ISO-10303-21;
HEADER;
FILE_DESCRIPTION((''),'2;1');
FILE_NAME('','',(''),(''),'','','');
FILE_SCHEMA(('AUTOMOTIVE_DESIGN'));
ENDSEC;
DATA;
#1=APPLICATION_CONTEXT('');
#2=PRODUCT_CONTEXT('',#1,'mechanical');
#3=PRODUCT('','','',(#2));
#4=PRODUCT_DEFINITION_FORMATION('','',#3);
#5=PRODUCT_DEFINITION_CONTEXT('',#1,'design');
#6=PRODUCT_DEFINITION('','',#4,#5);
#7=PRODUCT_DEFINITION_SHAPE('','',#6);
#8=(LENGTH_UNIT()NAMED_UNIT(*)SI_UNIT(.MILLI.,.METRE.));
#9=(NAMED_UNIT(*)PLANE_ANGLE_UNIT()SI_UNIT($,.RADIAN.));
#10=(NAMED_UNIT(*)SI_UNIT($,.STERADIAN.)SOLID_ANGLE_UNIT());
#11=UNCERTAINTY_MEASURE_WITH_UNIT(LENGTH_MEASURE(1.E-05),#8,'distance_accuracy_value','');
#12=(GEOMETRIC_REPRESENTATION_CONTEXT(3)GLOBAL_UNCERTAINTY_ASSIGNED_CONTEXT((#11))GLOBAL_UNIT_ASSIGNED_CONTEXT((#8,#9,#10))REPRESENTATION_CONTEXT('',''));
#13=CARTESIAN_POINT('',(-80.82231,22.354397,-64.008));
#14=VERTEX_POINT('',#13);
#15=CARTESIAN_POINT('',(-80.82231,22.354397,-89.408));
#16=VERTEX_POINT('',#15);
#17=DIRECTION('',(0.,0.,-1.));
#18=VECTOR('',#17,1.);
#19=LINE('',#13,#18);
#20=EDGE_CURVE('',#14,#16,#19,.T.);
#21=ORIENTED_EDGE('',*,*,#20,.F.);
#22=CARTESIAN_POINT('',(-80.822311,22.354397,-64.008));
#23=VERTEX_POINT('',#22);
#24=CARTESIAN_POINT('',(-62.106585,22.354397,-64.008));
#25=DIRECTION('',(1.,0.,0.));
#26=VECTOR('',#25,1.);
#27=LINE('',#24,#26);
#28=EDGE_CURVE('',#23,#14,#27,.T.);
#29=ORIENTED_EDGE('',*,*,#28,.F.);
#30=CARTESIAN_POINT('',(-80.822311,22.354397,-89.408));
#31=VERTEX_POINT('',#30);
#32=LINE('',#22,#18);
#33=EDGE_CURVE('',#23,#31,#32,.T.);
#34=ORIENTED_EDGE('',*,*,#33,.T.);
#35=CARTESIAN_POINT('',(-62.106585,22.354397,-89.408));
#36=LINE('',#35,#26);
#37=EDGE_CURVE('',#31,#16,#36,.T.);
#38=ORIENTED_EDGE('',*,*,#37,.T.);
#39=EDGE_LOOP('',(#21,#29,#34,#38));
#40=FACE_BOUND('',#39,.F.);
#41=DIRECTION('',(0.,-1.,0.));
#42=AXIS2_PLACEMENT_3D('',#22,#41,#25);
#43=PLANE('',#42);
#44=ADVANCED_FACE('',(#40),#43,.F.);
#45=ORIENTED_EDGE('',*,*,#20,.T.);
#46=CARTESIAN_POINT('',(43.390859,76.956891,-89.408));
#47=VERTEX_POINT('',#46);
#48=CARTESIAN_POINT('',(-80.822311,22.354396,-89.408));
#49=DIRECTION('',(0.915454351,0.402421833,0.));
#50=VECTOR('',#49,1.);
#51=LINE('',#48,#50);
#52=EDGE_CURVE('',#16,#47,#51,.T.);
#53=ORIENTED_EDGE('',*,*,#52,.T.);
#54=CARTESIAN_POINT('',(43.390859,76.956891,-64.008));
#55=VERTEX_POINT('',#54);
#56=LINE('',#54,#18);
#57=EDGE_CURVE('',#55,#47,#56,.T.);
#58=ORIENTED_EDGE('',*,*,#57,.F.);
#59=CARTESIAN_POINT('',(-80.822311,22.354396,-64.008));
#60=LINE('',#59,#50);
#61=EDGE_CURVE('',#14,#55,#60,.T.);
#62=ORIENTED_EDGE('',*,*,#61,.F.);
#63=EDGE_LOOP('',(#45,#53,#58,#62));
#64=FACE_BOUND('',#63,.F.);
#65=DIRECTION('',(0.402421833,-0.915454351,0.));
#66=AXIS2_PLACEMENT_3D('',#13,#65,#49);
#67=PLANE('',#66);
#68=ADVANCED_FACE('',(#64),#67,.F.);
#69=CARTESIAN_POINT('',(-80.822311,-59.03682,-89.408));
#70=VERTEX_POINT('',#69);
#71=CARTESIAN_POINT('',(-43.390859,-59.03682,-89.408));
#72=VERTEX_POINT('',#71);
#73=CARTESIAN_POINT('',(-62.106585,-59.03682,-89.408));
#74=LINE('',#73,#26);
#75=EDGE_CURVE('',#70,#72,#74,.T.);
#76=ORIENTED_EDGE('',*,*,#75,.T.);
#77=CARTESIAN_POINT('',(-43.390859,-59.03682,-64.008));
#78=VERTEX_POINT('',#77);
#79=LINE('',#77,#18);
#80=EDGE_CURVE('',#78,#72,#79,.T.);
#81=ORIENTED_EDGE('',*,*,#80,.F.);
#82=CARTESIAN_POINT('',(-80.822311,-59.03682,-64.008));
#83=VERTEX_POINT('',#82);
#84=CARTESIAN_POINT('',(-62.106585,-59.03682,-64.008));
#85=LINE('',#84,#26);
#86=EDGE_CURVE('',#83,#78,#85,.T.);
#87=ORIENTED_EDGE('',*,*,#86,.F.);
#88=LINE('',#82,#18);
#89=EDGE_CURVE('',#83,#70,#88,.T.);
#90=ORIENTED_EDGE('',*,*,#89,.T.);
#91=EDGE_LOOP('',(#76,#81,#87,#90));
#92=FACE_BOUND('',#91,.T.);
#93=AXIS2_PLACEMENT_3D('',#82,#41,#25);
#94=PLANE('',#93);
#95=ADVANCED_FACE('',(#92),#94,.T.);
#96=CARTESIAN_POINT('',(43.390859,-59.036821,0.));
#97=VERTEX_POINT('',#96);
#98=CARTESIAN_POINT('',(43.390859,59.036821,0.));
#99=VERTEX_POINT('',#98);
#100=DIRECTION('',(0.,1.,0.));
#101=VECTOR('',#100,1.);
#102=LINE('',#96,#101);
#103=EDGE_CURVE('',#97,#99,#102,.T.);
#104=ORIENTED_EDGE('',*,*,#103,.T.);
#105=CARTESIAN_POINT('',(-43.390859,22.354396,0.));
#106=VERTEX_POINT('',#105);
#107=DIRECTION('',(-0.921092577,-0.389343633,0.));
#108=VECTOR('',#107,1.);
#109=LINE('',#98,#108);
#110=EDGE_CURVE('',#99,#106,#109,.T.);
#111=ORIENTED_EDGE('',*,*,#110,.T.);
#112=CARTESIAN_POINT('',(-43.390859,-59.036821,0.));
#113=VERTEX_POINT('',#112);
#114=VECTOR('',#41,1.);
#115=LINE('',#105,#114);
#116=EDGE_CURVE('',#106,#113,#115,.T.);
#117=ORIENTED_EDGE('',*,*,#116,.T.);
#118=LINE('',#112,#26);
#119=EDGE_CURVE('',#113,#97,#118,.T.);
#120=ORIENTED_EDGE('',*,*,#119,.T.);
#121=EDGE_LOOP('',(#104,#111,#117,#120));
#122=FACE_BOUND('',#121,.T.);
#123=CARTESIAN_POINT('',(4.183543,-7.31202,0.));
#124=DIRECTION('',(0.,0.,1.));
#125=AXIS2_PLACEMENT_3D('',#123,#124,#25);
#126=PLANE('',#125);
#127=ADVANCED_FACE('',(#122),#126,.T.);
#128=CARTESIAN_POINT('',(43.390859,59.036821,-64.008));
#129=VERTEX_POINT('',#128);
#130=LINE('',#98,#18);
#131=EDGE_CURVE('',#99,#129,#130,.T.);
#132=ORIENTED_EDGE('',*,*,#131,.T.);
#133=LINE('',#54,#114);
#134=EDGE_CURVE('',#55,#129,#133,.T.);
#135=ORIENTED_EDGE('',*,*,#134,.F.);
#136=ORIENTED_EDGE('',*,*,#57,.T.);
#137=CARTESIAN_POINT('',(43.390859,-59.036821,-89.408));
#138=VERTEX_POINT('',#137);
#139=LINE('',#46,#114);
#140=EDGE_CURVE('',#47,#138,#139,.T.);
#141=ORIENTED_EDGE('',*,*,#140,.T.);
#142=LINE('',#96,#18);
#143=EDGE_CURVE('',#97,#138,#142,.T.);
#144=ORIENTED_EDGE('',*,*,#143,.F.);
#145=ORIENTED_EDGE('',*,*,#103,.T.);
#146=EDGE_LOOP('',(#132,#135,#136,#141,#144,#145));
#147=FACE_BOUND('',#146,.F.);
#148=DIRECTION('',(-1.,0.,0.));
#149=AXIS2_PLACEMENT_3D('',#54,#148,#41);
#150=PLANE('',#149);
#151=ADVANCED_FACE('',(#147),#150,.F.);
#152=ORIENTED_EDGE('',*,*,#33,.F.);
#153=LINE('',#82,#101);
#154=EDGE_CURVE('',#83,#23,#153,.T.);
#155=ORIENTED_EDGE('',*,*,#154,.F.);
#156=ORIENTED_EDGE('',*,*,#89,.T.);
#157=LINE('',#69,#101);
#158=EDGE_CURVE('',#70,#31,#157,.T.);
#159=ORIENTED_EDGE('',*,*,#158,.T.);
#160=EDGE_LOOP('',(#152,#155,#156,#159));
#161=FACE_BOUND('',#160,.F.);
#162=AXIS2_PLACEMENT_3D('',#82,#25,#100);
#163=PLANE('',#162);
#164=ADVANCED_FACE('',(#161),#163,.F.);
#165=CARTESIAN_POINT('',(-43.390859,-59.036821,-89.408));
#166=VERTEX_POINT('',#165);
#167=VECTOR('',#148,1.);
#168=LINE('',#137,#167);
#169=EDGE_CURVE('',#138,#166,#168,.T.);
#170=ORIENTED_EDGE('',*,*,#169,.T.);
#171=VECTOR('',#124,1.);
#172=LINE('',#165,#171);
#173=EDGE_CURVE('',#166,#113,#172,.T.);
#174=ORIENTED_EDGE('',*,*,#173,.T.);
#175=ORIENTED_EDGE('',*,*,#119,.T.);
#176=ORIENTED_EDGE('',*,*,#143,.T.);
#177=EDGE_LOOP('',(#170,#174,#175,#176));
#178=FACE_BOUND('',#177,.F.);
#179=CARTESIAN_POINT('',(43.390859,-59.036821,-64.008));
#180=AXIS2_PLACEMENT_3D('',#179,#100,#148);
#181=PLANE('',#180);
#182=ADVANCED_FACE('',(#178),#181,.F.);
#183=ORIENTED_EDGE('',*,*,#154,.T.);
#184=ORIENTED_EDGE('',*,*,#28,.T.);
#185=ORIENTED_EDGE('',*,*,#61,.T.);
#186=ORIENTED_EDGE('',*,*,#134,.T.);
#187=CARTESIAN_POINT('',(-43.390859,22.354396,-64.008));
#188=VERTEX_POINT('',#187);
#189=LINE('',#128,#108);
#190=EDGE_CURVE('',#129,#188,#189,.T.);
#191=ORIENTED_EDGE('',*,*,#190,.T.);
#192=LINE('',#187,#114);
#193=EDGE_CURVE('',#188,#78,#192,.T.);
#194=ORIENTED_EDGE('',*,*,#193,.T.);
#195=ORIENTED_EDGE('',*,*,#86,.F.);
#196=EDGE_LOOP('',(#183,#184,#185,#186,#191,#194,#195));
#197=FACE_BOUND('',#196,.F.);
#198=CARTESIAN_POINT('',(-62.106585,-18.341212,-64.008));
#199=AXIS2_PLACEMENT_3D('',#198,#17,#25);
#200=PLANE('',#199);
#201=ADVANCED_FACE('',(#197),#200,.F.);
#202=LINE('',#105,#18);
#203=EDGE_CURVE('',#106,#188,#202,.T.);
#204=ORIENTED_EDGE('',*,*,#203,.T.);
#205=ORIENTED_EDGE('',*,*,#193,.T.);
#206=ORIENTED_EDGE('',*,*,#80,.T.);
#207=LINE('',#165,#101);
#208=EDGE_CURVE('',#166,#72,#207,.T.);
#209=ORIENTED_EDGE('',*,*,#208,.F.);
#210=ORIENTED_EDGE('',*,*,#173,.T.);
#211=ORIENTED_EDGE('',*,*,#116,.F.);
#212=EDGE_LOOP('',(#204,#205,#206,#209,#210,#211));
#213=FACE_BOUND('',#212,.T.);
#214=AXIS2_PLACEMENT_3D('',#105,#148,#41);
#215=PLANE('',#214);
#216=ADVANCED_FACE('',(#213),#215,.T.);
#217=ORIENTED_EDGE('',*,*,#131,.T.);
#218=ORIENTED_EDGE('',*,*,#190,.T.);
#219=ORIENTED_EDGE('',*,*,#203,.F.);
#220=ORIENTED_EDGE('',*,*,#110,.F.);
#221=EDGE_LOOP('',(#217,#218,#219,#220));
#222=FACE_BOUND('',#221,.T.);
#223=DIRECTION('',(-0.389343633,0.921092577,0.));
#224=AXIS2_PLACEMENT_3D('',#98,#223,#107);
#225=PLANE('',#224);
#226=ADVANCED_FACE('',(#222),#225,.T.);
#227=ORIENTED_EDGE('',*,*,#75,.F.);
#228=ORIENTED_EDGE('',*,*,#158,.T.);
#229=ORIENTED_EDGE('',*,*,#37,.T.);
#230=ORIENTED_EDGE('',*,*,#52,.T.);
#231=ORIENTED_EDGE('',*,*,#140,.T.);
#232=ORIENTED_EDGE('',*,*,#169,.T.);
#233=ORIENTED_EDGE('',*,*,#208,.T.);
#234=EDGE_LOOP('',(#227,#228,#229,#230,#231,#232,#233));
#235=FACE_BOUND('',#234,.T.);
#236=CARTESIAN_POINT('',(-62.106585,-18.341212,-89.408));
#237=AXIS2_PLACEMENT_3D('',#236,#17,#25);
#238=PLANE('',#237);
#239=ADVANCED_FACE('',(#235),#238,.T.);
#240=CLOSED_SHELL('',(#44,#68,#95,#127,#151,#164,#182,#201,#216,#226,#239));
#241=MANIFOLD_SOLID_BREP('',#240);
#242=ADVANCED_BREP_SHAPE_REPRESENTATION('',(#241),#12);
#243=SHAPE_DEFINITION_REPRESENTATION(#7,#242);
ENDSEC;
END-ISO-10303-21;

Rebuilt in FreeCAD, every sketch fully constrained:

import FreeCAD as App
import Part
import Sketcher
from FreeCAD import Vector
Q = App.Units.Quantity


def add_polygon(sketch, points):
    """Adds a closed chain of lines whose ends are joined by coincident constraints."""
    first, n = sketch.GeometryCount, len(points)
    for a, b in zip(points, points[1:] + points[:1]):
        sketch.addGeometry(Part.LineSegment(App.Vector(*a, 0), App.Vector(*b, 0)), False)
    for i in range(n):
        sketch.addConstraint(Sketcher.Constraint("Coincident", first + i, 2, first + (i + 1) % n, 1))

doc = App.newDocument("Part")
body = doc.addObject("PartDesign::Body", "Body")

# Sketch on XY plane
sketch1 = doc.addObject("Sketcher::SketchObject", "Sketch")
body.addObject(sketch1)
sketch1.AttachmentSupport = (doc.XY_Plane, [""])
sketch1.MapMode = "FlatFace"
add_polygon(sketch1, [(-43.390859, 22.354396), (-43.390859, -59.036821), (43.390859, -59.036821), (43.390859, 59.036821)])  # lines 0-3
sketch1.addConstraint(Sketcher.Constraint("Vertical", 0))
sketch1.addConstraint(Sketcher.Constraint("Horizontal", 1))
sketch1.addConstraint(Sketcher.Constraint("Vertical", 2))
sketch1.addConstraint(Sketcher.Constraint("Symmetric", 0, 2, 2, 2, -1, 1))
sketch1.addConstraint(Sketcher.Constraint("DistanceX", 1, 1, 1, 2, Q("86.781718 mm")))
sketch1.addConstraint(Sketcher.Constraint("DistanceY", 0, 2, 0, 1, Q("81.391217 mm")))
sketch1.addConstraint(Sketcher.Constraint("DistanceY", 2, 1, 2, 2, Q("118.073642 mm")))
pad1 = doc.addObject("PartDesign::Pad", "Pad")
body.addObject(pad1)
pad1.Profile = sketch1
pad1.Length = Q("2.52 in")
pad1.Reversed = True

# Sketch on XY plane
sketch2 = doc.addObject("Sketcher::SketchObject", "Sketch001")
body.addObject(sketch2)
sketch2.AttachmentSupport = (doc.XY_Plane, [""])
sketch2.MapMode = "FlatFace"
sketch2.AttachmentOffset = App.Placement(Vector(0, 0, -2.52 * 25.4), App.Rotation())
sketch2.addGeometry(Part.LineSegment(Vector(-80.82231, 22.354397, 0), Vector(-80.822311, 22.354397, 0)), False)  # 0
sketch2.addGeometry(Part.LineSegment(Vector(-80.82231, 22.354397, 0), Vector(43.390859, 76.956891, 0)), False)  # 1
sketch2.addGeometry(Part.LineSegment(Vector(43.390859, 76.956891, 0), Vector(43.390859, -59.036821, 0)), False)  # 2
sketch2.addGeometry(Part.LineSegment(Vector(43.390859, -59.036821, 0), Vector(-43.390859, -59.036821, 0)), False)  # 3
sketch2.addGeometry(Part.LineSegment(Vector(-43.390859, -59.03682, 0), Vector(-43.390859, -59.036821, 0)), False)  # 4
sketch2.addGeometry(Part.LineSegment(Vector(-43.390859, -59.03682, 0), Vector(-80.822311, -59.03682, 0)), False)  # 5
sketch2.addGeometry(Part.LineSegment(Vector(-80.822311, -59.03682, 0), Vector(-80.822311, 22.354397, 0)), False)  # 6
sketch2.addConstraint(Sketcher.Constraint("Coincident", 0, 1, 1, 1))
sketch2.addConstraint(Sketcher.Constraint("Coincident", 1, 2, 2, 1))
sketch2.addConstraint(Sketcher.Constraint("Coincident", 2, 2, 3, 1))
sketch2.addConstraint(Sketcher.Constraint("Coincident", 3, 2, 4, 1))
sketch2.addConstraint(Sketcher.Constraint("Coincident", 4, 2, 5, 1))
sketch2.addConstraint(Sketcher.Constraint("Coincident", 5, 2, 6, 1))
sketch2.addConstraint(Sketcher.Constraint("Coincident", 6, 2, 0, 2))
sketch2.addConstraint(Sketcher.Constraint("Horizontal", 0))
sketch2.addConstraint(Sketcher.Constraint("Vertical", 2))
sketch2.addConstraint(Sketcher.Constraint("Horizontal", 3))
sketch2.addConstraint(Sketcher.Constraint("Horizontal", 4))
sketch2.addConstraint(Sketcher.Constraint("Horizontal", 5))
sketch2.addConstraint(Sketcher.Constraint("Vertical", 6))
sketch2.addConstraint(Sketcher.Constraint("Distance", 1, Q("135.684722 mm")))
sketch2.addConstraint(Sketcher.Constraint("DistanceX", 3, 2, 3, 1, Q("86.781718 mm")))
sketch2.addConstraint(Sketcher.Constraint("DistanceX", 5, 2, 5, 1, Q("37.431452 mm")))
sketch2.addConstraint(Sketcher.Constraint("DistanceY", 2, 2, 2, 1, Q("135.993712 mm")))
sketch2.addConstraint(Sketcher.Constraint("DistanceY", 6, 1, 6, 2, Q("81.391217 mm")))
sketch2.addConstraint(Sketcher.Constraint("DistanceX", 0, 1, -1, 1, Q("80.82231 mm")))
sketch2.addConstraint(Sketcher.Constraint("DistanceY", -1, 1, 1, 2, Q("76.956891 mm")))
sketch2.addConstraint(Sketcher.Constraint("DistanceX", 4, 2, -1, 1, Q("43.390859 mm")))
pad2 = doc.addObject("PartDesign::Pad", "Pad001")
body.addObject(pad2)
pad2.Profile = sketch2
pad2.Length = Q("1 in")
pad2.Reversed = True

doc.recompute()
